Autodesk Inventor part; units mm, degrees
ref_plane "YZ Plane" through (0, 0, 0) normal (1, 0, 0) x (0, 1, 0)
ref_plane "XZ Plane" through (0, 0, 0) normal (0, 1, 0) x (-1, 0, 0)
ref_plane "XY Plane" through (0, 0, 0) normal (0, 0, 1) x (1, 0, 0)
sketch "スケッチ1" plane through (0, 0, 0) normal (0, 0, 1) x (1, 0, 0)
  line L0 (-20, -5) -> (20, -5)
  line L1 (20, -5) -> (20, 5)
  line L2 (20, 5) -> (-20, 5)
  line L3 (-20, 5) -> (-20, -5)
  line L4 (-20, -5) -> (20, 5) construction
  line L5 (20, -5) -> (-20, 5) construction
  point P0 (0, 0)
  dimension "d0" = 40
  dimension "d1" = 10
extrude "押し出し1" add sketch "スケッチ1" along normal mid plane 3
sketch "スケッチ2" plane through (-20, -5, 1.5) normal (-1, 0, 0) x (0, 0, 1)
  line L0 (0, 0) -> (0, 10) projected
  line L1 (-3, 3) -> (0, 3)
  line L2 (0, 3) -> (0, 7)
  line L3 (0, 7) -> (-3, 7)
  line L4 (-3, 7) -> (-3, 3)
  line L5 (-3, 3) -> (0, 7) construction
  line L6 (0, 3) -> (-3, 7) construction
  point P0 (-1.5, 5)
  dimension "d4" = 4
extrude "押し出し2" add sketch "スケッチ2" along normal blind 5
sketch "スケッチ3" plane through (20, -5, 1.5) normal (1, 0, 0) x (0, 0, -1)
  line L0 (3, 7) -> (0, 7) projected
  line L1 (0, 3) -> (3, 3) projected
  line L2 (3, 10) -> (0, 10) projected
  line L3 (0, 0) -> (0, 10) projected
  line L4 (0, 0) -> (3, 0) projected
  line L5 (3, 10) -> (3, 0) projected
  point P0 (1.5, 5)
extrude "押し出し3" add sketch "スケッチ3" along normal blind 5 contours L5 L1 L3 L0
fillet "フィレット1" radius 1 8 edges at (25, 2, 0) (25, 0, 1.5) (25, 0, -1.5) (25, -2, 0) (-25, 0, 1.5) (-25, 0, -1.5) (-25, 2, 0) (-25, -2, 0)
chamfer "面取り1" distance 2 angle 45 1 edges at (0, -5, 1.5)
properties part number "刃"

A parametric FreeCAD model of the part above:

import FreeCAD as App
import Part
import Sketcher
from FreeCAD import Vector
Q = App.Units.Quantity


def edges_at(feature, points):
    """Names of the edges that pass closest to the given points."""
    edges = feature.Shape.Edges
    near = lambda p: min(range(len(edges)), key=lambda i: edges[i].distToShape(Part.Vertex(*p))[0])
    return sorted({f"Edge{near(p) + 1}" for p in points})


def add_polygon(sketch, points):
    """Adds a closed chain of lines whose ends are joined by coincident constraints."""
    first, n = sketch.GeometryCount, len(points)
    for a, b in zip(points, points[1:] + points[:1]):
        sketch.addGeometry(Part.LineSegment(App.Vector(*a, 0), App.Vector(*b, 0)), False)
    for i in range(n):
        sketch.addConstraint(Sketcher.Constraint("Coincident", first + i, 2, first + (i + 1) % n, 1))

doc = App.newDocument("Part")
body = doc.addObject("PartDesign::Body", "Body")

sketch1 = doc.addObject("Sketcher::SketchObject", "Sketch")
body.addObject(sketch1)
sketch1.AttachmentSupport = (doc.XY_Plane, [""])
sketch1.MapMode = "FlatFace"
add_polygon(sketch1, [(-20, 5), (-20, -5), (20, -5), (20, 5)])
sketch1.addConstraint(Sketcher.Constraint("Vertical", 0))
sketch1.addConstraint(Sketcher.Constraint("Horizontal", 1))
sketch1.addConstraint(Sketcher.Constraint("Vertical", 2))
sketch1.addConstraint(Sketcher.Constraint("Horizontal", 3))
sketch1.addConstraint(Sketcher.Constraint("Symmetric", 0, 2, 2, 2, -1, 1))
sketch1.addConstraint(Sketcher.Constraint("DistanceX", 1, 1, 1, 2, Q("40 mm")))
sketch1.addConstraint(Sketcher.Constraint("DistanceY", 0, 2, 0, 1, Q("10 mm")))
pad1 = doc.addObject("PartDesign::Pad", "Pad")
body.addObject(pad1)
pad1.Profile = sketch1
pad1.Length = 3
pad1.Midplane = True

sketch2 = doc.addObject("Sketcher::SketchObject", "Sketch001")
body.addObject(sketch2)
sketch2.AttachmentSupport = (doc.YZ_Plane, [""])
sketch2.MapMode = "FlatFace"
sketch2.AttachmentOffset = App.Placement(Vector(0, 0, -20), App.Rotation())
add_polygon(sketch2, [(-2, -1.5), (-2, 1.5), (2, 1.5), (2, -1.5)])
sketch2.addConstraint(Sketcher.Constraint("Vertical", 0))
sketch2.addConstraint(Sketcher.Constraint("Horizontal", 1))
sketch2.addConstraint(Sketcher.Constraint("Vertical", 2))
sketch2.addConstraint(Sketcher.Constraint("Horizontal", 3))
sketch2.addConstraint(Sketcher.Constraint("Symmetric", 0, 2, 2, 2, -1, 1))
sketch2.addConstraint(Sketcher.Constraint("DistanceX", 1, 1, 1, 2, Q("4 mm")))
sketch2.addConstraint(Sketcher.Constraint("DistanceY", 0, 1, 0, 2, Q("3 mm")))
pad2 = doc.addObject("PartDesign::Pad", "Pad001")
body.addObject(pad2)
pad2.Profile = sketch2
pad2.Length = 5
pad2.Reversed = True

sketch3 = doc.addObject("Sketcher::SketchObject", "Sketch002")
body.addObject(sketch3)
sketch3.AttachmentSupport = (doc.YZ_Plane, [""])
sketch3.MapMode = "FlatFace"
sketch3.AttachmentOffset = App.Placement(Vector(0, 0, 20), App.Rotation())
add_polygon(sketch3, [(-2, -1.5), (2, -1.5), (2, 1.5), (-2, 1.5)])
sketch3.addConstraint(Sketcher.Constraint("Horizontal", 0))
sketch3.addConstraint(Sketcher.Constraint("Vertical", 1))
sketch3.addConstraint(Sketcher.Constraint("Horizontal", 2))
sketch3.addConstraint(Sketcher.Constraint("Vertical", 3))
sketch3.addConstraint(Sketcher.Constraint("Symmetric", 0, 2, 2, 2, -1, 1))
sketch3.addConstraint(Sketcher.Constraint("DistanceX", 0, 1, 0, 2, Q("4 mm")))
sketch3.addConstraint(Sketcher.Constraint("DistanceY", 1, 1, 1, 2, Q("3 mm")))
pad3 = doc.addObject("PartDesign::Pad", "Pad002")
body.addObject(pad3)
pad3.Profile = sketch3
pad3.Length = 5
doc.recompute()

fillet = doc.addObject("PartDesign::Fillet", "Fillet")
body.addObject(fillet)
fillet.Base = (pad3, edges_at(pad3, [
    (25, 2, 0),
    (25, 0, 1.5),
    (25, 0, -1.5),
    (25, -2, 0),
    (-25, 0, 1.5),
    (-25, 0, -1.5),
    (-25, 2, 0),
    (-25, -2, 0),
]))
fillet.Radius = 1
doc.recompute()

chamfer = doc.addObject("PartDesign::Chamfer", "Chamfer")
body.addObject(chamfer)
chamfer.Base = (fillet, edges_at(fillet, [(0, -5, 1.5)]))
chamfer.Size = 2

doc.recompute()
